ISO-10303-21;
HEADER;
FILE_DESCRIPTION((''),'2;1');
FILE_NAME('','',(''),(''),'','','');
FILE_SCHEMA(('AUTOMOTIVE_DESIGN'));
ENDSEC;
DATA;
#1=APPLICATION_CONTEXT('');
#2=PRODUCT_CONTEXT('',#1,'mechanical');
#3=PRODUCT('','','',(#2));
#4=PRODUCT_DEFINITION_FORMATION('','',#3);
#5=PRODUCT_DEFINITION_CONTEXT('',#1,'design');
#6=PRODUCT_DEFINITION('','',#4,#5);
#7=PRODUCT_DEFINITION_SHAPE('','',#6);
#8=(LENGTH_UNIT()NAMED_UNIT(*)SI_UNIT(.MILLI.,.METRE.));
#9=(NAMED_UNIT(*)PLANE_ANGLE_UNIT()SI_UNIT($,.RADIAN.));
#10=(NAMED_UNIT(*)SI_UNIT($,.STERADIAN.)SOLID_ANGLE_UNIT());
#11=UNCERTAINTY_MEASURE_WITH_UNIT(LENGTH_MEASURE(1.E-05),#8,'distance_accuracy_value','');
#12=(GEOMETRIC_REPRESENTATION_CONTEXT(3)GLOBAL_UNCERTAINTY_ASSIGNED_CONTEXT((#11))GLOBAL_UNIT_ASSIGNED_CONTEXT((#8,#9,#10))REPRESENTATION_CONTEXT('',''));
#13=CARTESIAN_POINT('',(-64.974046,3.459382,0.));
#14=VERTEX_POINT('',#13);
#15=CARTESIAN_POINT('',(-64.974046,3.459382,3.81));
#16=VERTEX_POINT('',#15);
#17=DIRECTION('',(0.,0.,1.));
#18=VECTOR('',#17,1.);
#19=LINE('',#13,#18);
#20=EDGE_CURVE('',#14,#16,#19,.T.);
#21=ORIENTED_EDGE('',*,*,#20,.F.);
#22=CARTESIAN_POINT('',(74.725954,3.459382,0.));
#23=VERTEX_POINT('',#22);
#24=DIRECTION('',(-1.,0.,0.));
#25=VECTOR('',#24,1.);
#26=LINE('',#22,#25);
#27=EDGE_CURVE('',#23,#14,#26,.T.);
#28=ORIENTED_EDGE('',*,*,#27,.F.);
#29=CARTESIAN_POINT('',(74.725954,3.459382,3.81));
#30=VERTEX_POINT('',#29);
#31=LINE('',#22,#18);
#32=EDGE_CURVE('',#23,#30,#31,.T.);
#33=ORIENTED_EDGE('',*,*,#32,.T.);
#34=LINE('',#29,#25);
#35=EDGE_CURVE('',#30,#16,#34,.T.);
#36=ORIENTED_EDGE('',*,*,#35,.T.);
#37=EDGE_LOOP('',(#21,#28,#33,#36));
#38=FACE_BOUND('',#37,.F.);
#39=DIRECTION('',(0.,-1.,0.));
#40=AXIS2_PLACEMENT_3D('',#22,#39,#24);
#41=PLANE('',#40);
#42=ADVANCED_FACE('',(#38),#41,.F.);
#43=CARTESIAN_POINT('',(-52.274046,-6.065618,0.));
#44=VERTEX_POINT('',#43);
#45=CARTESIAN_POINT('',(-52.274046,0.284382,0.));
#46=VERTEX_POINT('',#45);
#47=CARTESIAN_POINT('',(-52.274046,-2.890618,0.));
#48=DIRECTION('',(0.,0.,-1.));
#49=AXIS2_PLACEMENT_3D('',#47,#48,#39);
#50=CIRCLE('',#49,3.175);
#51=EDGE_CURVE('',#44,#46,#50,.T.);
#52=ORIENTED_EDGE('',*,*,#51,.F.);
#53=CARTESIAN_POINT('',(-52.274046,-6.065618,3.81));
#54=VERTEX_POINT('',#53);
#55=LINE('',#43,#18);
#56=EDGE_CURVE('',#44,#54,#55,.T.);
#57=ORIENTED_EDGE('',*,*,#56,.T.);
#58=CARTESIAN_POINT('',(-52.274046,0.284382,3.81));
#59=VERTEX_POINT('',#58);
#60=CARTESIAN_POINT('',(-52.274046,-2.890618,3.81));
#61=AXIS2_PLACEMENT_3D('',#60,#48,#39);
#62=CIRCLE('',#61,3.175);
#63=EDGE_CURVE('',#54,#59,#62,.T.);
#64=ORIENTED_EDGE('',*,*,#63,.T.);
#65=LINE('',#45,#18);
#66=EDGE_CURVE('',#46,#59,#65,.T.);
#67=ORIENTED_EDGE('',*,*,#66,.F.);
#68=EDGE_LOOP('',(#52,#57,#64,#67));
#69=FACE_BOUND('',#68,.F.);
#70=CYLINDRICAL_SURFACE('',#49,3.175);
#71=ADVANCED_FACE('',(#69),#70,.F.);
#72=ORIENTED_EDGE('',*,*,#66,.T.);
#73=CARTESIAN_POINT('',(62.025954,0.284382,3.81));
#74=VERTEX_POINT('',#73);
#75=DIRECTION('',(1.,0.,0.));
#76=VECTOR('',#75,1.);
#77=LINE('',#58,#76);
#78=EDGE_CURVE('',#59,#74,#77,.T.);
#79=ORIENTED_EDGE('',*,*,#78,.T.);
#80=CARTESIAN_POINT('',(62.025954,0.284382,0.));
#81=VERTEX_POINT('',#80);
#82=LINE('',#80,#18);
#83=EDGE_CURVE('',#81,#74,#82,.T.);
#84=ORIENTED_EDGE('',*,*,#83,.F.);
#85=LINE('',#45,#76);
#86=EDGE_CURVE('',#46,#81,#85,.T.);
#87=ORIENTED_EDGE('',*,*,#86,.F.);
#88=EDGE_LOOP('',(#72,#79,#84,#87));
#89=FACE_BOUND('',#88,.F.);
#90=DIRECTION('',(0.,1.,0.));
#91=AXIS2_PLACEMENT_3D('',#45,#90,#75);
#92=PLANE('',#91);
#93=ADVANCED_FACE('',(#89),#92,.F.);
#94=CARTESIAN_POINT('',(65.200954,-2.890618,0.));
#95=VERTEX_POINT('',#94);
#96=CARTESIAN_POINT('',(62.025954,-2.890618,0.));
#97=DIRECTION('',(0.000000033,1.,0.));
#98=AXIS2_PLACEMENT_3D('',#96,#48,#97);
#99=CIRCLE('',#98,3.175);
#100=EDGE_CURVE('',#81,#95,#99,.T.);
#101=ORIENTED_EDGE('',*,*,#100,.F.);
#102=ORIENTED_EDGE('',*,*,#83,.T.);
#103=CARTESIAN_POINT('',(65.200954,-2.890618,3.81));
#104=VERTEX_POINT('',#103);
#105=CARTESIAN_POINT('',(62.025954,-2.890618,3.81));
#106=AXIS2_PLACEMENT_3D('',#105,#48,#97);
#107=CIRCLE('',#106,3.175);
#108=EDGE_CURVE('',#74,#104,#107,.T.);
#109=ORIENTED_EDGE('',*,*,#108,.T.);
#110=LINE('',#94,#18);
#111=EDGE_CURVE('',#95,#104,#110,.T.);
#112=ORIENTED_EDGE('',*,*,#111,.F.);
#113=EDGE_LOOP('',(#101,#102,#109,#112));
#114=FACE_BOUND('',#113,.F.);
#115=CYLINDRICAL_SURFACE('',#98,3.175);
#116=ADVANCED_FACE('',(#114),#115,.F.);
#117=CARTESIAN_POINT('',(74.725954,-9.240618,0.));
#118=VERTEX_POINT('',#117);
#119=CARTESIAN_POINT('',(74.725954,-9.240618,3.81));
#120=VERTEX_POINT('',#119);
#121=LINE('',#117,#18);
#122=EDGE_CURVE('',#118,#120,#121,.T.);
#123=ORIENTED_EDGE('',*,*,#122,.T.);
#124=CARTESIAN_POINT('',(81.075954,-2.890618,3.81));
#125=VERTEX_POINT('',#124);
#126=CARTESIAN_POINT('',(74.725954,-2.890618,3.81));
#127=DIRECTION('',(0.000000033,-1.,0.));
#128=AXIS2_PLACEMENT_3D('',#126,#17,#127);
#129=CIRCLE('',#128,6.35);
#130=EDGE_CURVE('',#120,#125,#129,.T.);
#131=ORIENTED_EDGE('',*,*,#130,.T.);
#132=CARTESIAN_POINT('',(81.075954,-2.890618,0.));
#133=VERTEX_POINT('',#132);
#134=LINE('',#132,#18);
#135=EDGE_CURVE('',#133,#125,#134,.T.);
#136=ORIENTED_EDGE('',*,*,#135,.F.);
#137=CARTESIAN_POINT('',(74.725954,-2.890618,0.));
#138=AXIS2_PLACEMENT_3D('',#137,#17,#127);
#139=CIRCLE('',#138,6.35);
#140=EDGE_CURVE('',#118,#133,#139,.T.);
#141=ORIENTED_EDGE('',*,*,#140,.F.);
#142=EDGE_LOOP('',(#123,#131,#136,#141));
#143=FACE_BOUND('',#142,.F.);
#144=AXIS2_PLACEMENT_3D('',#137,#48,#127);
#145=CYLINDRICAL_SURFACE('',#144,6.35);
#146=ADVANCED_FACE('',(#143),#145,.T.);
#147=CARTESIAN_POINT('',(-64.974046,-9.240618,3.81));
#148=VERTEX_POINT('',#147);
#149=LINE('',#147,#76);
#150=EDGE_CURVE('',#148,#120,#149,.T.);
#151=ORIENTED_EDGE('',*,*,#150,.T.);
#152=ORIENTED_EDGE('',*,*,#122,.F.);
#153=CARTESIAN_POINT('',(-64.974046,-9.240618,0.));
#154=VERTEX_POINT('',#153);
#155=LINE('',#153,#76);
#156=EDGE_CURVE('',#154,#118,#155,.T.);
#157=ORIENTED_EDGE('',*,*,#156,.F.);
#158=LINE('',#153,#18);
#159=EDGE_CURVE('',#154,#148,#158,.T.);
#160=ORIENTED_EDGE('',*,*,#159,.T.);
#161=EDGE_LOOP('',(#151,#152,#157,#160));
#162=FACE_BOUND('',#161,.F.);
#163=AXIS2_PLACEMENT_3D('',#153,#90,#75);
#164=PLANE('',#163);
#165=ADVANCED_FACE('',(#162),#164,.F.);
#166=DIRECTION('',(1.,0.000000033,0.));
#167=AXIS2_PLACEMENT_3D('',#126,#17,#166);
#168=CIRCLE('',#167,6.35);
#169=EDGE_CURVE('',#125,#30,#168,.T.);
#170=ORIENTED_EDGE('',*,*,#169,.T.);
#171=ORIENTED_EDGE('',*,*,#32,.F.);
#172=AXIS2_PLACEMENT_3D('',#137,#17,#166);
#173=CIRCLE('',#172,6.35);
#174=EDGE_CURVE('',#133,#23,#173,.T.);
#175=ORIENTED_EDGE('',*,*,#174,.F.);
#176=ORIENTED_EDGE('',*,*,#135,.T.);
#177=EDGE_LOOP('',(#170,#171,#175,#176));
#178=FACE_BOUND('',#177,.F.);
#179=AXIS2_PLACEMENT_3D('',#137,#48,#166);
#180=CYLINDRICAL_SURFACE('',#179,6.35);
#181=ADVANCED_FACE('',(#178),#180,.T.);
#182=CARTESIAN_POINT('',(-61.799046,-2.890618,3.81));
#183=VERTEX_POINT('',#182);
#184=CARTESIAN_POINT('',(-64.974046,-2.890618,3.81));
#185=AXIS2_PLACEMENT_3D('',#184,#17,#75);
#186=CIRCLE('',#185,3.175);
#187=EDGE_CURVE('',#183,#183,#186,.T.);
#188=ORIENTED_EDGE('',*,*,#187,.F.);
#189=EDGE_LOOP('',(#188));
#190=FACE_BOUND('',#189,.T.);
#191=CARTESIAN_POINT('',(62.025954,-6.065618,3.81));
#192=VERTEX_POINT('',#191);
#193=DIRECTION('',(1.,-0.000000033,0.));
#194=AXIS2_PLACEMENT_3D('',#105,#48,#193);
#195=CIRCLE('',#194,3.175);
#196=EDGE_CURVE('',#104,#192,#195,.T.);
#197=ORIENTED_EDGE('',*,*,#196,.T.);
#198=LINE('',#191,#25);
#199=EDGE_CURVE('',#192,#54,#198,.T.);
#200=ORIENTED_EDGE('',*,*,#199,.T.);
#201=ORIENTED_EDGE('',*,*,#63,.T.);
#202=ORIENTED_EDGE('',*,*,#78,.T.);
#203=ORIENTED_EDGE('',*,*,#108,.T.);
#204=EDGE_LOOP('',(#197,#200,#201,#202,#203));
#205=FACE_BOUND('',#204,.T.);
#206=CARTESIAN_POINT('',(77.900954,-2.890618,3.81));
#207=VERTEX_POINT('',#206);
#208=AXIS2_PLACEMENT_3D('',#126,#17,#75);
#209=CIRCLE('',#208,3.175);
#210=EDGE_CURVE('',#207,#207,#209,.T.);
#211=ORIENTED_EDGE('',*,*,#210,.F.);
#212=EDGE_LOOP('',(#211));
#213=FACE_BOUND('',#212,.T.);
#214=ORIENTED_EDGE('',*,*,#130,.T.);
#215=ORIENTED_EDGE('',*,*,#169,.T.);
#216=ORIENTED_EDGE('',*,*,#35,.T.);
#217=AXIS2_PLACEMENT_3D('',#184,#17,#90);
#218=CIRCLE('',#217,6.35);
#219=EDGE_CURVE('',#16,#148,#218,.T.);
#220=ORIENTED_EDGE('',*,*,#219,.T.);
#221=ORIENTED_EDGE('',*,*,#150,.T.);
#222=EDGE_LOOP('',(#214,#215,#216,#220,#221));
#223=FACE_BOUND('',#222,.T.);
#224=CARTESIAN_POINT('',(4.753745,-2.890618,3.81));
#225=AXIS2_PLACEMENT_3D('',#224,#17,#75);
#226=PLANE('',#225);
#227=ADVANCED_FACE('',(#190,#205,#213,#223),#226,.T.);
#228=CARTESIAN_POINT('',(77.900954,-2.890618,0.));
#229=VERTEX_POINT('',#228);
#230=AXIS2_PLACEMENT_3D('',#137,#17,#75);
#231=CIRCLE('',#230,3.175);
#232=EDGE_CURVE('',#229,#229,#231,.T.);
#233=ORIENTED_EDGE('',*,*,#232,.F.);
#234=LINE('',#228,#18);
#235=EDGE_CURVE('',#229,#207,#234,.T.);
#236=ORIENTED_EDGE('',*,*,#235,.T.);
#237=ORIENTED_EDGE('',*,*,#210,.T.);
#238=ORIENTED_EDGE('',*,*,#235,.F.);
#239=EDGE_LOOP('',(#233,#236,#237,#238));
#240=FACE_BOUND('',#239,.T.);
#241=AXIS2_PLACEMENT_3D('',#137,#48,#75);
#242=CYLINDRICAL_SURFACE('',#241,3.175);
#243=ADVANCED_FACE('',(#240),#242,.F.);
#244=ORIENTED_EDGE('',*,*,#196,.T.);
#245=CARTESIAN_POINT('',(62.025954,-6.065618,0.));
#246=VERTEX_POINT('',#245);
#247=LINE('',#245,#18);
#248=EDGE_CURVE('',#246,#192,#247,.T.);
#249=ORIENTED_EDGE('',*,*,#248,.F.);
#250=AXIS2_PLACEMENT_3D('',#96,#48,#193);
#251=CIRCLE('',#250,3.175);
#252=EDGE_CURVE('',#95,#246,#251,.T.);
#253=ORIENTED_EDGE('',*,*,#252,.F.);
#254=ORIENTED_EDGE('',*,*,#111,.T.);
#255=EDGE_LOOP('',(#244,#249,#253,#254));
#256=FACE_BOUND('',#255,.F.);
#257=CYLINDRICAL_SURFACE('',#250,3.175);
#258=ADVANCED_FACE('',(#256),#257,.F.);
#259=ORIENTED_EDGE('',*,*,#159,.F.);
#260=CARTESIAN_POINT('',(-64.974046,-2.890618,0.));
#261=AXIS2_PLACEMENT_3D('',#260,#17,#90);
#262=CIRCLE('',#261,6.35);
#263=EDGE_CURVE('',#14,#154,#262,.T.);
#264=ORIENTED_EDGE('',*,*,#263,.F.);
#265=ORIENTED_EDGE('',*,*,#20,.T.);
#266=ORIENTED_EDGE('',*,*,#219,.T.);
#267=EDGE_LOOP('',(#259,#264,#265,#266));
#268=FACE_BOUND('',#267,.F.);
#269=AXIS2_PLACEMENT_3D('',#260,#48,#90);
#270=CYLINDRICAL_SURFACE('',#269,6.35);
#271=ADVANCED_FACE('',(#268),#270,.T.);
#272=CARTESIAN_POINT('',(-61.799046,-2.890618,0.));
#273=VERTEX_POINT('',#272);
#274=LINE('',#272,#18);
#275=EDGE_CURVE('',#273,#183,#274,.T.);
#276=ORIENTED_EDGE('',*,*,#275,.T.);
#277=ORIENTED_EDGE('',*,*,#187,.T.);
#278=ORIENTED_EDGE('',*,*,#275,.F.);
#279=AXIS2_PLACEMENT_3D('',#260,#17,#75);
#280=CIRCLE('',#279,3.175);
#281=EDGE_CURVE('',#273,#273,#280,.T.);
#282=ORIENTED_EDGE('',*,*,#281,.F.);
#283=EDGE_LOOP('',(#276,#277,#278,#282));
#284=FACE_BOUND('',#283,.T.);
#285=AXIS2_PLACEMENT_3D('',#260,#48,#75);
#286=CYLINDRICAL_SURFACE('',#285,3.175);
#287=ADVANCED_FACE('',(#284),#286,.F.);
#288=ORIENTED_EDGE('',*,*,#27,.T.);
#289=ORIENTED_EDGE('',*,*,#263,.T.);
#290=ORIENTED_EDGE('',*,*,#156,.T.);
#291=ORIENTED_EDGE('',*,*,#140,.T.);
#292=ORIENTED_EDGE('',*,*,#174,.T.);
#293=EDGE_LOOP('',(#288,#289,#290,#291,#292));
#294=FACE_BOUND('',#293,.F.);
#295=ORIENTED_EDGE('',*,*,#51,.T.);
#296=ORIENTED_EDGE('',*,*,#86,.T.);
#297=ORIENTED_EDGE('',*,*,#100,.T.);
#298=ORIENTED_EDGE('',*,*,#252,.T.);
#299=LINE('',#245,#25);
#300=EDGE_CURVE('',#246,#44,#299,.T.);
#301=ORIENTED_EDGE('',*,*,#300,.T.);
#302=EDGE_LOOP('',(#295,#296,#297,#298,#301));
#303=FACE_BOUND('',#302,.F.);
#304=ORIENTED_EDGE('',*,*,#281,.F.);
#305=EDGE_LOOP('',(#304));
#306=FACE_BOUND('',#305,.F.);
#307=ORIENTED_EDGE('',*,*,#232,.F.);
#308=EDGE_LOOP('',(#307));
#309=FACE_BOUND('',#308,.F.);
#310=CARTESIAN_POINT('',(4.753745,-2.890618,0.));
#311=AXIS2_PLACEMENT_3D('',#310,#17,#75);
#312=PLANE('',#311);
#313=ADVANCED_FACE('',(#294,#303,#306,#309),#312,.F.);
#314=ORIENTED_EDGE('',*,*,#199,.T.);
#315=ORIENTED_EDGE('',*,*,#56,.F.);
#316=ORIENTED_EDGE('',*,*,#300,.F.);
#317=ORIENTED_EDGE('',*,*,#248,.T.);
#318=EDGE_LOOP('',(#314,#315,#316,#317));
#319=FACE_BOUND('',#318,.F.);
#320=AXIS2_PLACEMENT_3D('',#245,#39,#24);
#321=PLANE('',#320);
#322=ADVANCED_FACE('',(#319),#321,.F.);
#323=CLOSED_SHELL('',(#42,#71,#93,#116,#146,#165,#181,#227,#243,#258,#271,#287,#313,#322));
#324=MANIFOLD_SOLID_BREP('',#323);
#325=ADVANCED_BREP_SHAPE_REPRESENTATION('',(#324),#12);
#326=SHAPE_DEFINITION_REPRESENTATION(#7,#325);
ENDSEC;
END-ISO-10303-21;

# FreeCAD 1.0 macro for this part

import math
import FreeCAD as App
import Part
import Sketcher
Q = App.Units.Quantity

doc = App.newDocument("Part")
params = doc.addObject("Spreadsheet::Sheet", "Params")
for row, (alias, value) in enumerate([
    ("sketch1_diameter", "0.25 in"),
    ("sketch1_radius", "0.25 in"),
    ("sketch1_width", "5.5 in"),
    ("sketch1_width2", "4.5 in"),
    ("pad1_length", "0.15 in"),
], start=1):
    params.set(f"A{row}", alias)
    params.set(f"B{row}", "=" + value)
    params.setAlias(f"B{row}", alias)

body = doc.addObject("PartDesign::Body", "Body")

# Sketch on XY plane
sketch1 = body.newObject("Sketcher::SketchObject", "Sketch")
sketch1.AttachmentSupport = (doc.getObject("XY_Plane"), [""])
sketch1.MapMode = "FlatFace"
sketch1.addGeometry([
    Part.LineSegment(App.Vector(74.7, 3.5, 0), App.Vector(-65, 3.5, 0)),  # 0
    Part.ArcOfCircle(Part.Circle(App.Vector(-65, -2.9, 0), App.Vector(0, 0, 1), 6.3), math.radians(90), math.radians(270)),  # 1
    Part.LineSegment(App.Vector(-65, -9.2, 0), App.Vector(74.7, -9.2, 0)),  # 2
    Part.ArcOfCircle(Part.Circle(App.Vector(74.7, -2.9, 0), App.Vector(0, 0, 1), 6.4), math.radians(-90), math.radians(0)),  # 3
    Part.ArcOfCircle(Part.Circle(App.Vector(74.7, -2.9, 0), App.Vector(0, 0, 1), 6.4), math.radians(0), math.radians(90)),  # 4
    Part.Circle(App.Vector(-65, -2.9, 0), App.Vector(0, 0, 1), 3.2),  # 5
    Part.LineSegment(App.Vector(62, -6.1, 0), App.Vector(-52.3, -6.1, 0)),  # 6
    Part.ArcOfCircle(Part.Circle(App.Vector(-52.3, -2.9, 0), App.Vector(0, 0, 1), 3.2), math.radians(90), math.radians(270)),  # 7
    Part.LineSegment(App.Vector(-52.3, 0.3, 0), App.Vector(62, 0.3, 0)),  # 8
    Part.ArcOfCircle(Part.Circle(App.Vector(62, -2.9, 0), App.Vector(0, 0, 1), 3.2), math.radians(0), math.radians(90)),  # 9
    Part.ArcOfCircle(Part.Circle(App.Vector(62, -2.9, 0), App.Vector(0, 0, 1), 3.2), math.radians(-90), math.radians(0)),  # 10
    Part.Circle(App.Vector(74.7, -2.9, 0), App.Vector(0, 0, 1), 3.2),  # 11
], False)
sketch1.addConstraint([
    Sketcher.Constraint("Tangent", 0, 2, 1, 1),
    Sketcher.Constraint("Tangent", 1, 2, 2, 1),
    Sketcher.Constraint("Tangent", 2, 2, 3, 1),
    Sketcher.Constraint("Tangent", 3, 2, 4, 1),
    Sketcher.Constraint("Tangent", 4, 2, 0, 1),
    Sketcher.Constraint("Tangent", 6, 2, 7, 2),
    Sketcher.Constraint("Tangent", 7, 1, 8, 1),
    Sketcher.Constraint("Tangent", 8, 2, 9, 2),
    Sketcher.Constraint("Tangent", 9, 1, 10, 2),
    Sketcher.Constraint("Tangent", 10, 1, 6, 1),
    Sketcher.Constraint("Horizontal", 0),
    Sketcher.Constraint("Horizontal", 2),
    Sketcher.Constraint("Horizontal", 6),
    Sketcher.Constraint("Horizontal", 8),
    Sketcher.Constraint("Coincident", 5, 3, 1, 3),
    Sketcher.Constraint("Coincident", 11, 3, 3, 3),
    Sketcher.Constraint("Equal", 1, 3),
    Sketcher.Constraint("Equal", 5, 7),
    Sketcher.Constraint("Equal", 7, 9),
    Sketcher.Constraint("Equal", 10, 11),
    Sketcher.Constraint("Horizontal", 5, 3, 7, 3),
    Sketcher.Constraint("Horizontal", 11, 3, 3, 2),
    Sketcher.Constraint("Horizontal", 3, 2, 9, 1),
    Sketcher.Constraint("Diameter", 5, Q("0.25 in")),
    Sketcher.Constraint("Radius", 1, Q("0.25 in")),
    Sketcher.Constraint("DistanceX", 0, 2, 0, 1, Q("5.5 in")),
    Sketcher.Constraint("DistanceX", 6, 2, 6, 1, Q("4.5 in")),
    Sketcher.Constraint("DistanceX", 7, 3, 3, 3, Q("5 in")),
    Sketcher.Constraint("DistanceY", 4, 3, -1, 1, Q("2.890618 mm")),
    Sketcher.Constraint("DistanceX", 1, 3, -1, 1, Q("64.974046 mm")),
])
sketch1.setExpression("Constraints[23]", "Params.sketch1_diameter")
sketch1.setExpression("Constraints[24]", "Params.sketch1_radius")
sketch1.setExpression("Constraints[25]", "Params.sketch1_width")
sketch1.setExpression("Constraints[26]", "Params.sketch1_width2")
pad1 = body.newObject("PartDesign::Pad", "Pad")
pad1.Profile = sketch1
pad1.setExpression("Length", "Params.pad1_length")

doc.recompute()
